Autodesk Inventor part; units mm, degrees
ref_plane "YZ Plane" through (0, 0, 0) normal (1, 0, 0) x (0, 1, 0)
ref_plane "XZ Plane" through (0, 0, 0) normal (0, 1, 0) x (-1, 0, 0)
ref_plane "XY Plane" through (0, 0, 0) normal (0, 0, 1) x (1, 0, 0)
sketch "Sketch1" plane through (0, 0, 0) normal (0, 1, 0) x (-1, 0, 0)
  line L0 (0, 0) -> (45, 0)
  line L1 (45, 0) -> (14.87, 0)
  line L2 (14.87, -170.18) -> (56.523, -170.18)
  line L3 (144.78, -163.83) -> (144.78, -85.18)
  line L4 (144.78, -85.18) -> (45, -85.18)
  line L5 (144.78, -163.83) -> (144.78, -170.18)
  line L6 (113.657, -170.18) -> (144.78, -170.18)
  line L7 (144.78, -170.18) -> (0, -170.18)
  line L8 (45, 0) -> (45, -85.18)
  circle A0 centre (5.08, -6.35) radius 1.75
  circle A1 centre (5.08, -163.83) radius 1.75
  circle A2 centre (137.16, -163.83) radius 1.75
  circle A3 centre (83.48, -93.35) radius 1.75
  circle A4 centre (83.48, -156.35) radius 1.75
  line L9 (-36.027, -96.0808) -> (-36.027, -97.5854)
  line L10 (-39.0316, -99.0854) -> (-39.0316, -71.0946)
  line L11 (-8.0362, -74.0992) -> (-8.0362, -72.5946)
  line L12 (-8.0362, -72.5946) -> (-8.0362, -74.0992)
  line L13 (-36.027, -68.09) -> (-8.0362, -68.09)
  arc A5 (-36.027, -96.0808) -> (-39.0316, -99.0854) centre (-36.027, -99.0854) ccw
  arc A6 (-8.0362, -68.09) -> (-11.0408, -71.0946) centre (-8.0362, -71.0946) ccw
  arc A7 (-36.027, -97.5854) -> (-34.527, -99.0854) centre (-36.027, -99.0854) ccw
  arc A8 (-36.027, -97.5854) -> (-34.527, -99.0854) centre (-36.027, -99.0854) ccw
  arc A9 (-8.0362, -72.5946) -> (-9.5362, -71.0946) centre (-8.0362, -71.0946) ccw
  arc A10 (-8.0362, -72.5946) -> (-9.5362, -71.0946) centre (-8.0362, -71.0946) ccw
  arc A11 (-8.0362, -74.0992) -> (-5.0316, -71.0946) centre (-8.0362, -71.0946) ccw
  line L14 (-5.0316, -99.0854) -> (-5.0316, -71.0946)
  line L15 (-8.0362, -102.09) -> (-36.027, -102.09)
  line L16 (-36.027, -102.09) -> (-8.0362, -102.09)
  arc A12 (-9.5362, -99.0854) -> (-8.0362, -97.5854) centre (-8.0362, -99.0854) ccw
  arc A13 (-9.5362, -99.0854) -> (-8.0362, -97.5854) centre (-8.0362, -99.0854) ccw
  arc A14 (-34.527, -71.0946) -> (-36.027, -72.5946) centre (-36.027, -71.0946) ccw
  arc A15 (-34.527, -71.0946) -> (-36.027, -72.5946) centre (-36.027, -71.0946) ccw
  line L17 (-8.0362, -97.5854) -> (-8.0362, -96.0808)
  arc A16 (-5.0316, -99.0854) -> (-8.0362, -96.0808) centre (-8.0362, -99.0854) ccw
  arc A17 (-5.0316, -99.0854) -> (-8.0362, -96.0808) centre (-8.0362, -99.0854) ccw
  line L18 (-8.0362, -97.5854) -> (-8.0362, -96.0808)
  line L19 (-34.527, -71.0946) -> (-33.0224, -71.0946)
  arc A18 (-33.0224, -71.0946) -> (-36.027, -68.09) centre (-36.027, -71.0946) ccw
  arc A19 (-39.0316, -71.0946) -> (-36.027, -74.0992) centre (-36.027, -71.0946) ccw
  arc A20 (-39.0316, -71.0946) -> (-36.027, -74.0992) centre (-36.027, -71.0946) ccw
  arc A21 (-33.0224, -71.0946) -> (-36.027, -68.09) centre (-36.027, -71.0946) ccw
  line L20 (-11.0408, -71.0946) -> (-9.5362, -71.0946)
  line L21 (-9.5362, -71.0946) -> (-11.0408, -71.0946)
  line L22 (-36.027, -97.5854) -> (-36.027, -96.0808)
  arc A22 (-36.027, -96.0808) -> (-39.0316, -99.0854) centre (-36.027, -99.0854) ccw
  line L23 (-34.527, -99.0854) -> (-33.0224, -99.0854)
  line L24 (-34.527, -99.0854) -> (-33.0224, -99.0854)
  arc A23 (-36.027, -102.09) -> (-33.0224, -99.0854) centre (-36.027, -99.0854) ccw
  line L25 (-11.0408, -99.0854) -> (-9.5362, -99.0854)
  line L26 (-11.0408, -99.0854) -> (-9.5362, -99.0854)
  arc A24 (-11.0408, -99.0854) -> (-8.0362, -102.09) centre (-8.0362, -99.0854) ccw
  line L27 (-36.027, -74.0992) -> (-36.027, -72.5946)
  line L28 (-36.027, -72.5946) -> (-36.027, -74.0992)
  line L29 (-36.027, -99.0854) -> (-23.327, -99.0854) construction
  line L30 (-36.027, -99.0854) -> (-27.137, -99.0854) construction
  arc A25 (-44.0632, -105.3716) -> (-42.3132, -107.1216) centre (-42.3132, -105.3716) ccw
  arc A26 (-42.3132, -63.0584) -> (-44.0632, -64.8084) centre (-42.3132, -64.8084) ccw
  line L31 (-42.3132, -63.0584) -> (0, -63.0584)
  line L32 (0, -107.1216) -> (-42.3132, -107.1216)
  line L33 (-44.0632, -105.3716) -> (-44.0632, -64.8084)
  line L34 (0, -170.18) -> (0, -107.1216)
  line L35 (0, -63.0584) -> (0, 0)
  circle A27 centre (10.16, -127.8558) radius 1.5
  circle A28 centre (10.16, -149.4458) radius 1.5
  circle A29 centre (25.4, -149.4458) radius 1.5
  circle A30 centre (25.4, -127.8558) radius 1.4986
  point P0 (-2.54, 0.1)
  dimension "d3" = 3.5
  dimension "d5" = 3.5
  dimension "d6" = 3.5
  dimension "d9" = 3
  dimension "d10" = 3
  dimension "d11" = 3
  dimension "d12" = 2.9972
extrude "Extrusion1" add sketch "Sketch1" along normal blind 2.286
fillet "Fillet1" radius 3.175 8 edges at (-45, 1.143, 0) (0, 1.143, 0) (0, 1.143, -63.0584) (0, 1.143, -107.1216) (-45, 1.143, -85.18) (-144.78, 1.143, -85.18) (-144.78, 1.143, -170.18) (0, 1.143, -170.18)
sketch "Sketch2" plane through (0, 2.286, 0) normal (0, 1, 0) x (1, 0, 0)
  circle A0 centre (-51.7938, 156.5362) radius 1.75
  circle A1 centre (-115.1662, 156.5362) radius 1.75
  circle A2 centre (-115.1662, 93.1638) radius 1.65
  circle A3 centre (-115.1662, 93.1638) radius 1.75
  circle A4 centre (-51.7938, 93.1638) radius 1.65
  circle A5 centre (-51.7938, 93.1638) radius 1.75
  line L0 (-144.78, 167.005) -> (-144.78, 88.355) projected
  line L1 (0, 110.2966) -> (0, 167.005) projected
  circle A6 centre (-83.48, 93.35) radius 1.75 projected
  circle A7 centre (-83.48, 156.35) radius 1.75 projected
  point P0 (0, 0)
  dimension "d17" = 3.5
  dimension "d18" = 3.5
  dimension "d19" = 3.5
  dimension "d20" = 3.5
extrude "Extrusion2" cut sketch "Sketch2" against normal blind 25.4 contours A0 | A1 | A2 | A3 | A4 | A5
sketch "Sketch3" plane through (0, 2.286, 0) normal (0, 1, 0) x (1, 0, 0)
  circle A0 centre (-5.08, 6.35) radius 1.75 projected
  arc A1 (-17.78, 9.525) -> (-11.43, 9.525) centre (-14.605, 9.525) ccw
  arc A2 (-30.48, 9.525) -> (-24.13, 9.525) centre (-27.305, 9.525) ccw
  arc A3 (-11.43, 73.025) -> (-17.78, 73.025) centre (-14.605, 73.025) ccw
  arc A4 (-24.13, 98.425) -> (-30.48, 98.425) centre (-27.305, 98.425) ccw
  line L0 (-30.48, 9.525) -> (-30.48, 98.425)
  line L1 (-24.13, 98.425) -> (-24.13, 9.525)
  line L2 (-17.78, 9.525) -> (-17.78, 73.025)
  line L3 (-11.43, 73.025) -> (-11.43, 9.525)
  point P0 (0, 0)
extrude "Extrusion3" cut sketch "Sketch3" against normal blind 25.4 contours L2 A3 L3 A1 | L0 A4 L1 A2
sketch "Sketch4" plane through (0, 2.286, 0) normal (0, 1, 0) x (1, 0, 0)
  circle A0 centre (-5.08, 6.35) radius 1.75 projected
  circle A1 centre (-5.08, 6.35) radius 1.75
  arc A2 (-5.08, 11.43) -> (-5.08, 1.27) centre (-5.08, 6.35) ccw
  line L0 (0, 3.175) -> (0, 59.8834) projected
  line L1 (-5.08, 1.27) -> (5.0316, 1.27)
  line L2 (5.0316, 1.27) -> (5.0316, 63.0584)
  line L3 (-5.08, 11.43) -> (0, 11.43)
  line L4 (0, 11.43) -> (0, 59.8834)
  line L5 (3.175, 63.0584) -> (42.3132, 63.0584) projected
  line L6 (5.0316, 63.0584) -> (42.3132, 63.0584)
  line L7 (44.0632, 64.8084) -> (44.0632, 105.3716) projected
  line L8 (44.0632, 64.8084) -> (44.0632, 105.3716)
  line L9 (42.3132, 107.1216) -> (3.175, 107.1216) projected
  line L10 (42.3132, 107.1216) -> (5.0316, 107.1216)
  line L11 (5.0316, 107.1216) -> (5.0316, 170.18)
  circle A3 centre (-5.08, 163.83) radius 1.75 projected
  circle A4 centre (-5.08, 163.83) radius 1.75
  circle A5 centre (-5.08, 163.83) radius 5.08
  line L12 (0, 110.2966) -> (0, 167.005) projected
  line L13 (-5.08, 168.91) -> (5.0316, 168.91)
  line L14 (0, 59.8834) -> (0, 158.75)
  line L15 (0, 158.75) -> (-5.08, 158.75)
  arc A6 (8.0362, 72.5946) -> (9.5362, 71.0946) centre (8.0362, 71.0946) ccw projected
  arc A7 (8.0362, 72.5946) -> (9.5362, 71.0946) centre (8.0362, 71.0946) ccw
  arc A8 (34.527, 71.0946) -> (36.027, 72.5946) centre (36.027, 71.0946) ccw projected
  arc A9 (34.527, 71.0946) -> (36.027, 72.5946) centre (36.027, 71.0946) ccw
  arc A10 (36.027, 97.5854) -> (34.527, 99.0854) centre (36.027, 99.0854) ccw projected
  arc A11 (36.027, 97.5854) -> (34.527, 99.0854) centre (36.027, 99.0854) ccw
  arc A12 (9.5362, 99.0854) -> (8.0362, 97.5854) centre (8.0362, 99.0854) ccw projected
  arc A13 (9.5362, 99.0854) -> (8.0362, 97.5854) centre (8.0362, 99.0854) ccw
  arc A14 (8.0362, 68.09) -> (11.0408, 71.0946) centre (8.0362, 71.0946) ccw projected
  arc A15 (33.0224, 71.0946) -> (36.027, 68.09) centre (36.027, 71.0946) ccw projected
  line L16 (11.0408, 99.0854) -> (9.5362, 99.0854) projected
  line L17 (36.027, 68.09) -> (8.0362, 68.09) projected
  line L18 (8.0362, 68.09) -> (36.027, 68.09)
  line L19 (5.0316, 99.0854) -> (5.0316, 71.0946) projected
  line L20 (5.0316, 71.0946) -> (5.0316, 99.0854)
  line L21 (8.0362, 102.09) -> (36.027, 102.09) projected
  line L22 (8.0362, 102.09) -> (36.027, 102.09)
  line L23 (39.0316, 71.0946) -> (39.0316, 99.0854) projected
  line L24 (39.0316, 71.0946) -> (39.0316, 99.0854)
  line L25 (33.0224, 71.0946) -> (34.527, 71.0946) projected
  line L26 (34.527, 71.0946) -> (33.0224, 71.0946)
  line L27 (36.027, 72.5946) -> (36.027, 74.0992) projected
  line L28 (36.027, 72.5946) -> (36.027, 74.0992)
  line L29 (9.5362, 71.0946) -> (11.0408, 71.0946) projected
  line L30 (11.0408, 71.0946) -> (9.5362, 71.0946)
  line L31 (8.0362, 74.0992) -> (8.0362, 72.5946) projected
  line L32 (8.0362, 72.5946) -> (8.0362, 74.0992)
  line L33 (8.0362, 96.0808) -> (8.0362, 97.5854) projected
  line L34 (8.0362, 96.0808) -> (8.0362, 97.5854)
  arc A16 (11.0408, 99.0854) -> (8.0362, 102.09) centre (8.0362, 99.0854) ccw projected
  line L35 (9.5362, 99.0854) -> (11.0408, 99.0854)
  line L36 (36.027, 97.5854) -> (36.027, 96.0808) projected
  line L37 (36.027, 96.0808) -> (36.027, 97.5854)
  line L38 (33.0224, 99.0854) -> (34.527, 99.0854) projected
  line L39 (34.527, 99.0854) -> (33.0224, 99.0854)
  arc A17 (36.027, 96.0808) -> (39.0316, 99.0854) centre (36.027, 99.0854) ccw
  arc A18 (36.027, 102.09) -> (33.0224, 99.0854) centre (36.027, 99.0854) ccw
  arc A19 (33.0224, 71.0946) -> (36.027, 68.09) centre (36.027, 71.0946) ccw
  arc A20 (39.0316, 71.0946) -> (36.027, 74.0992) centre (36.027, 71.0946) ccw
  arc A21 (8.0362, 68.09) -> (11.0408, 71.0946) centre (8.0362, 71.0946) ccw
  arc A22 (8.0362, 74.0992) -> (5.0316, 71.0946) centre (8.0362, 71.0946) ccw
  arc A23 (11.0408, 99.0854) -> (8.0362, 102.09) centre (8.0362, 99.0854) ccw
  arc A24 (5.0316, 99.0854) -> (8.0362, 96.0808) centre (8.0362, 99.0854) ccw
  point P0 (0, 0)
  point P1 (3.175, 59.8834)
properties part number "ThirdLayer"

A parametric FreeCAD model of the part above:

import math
import FreeCAD as App
import Part
import Sketcher

V = App.Vector
Q = App.Units.Quantity


def edges_at(feature, points):
    """Names of the edges that pass closest to the given points."""
    edges = feature.Shape.Edges
    near = lambda p: min(range(len(edges)), key=lambda i: edges[i].distToShape(Part.Vertex(*p))[0])
    return sorted({f"Edge{near(p) + 1}" for p in points})

doc = App.newDocument("Part")
body = doc.addObject("PartDesign::Body", "Body")

# Sketch on XZ plane
sketch1 = doc.addObject("Sketcher::SketchObject", "Sketch")
body.addObject(sketch1)
sketch1.AttachmentSupport = (doc.XZ_Plane, [""])
sketch1.MapMode = "FlatFace"
sketch1.addGeometry([
    Part.LineSegment(V(-45, 0, 0), V(0, 0, 0)),  # 0
    Part.LineSegment(V(0, 0, 0), V(0, -63.1, 0)),  # 1
    Part.LineSegment(V(0, -63.1, 0), V(42.3, -63.1, 0)),  # 2
    Part.ArcOfCircle(Part.Circle(V(42.3, -64.8, 0), V(0, 0, 1), 1.8), math.radians(0), math.radians(90)),  # 3
    Part.LineSegment(V(44.1, -64.8, 0), V(44.1, -105.4, 0)),  # 4
    Part.ArcOfCircle(Part.Circle(V(42.3, -105.4, 0), V(0, 0, 1), 1.8), math.radians(-90), math.radians(0)),  # 5
    Part.LineSegment(V(42.3, -107.1, 0), V(0, -107.1, 0)),  # 6
    Part.LineSegment(V(0, -107.1, 0), V(0, -170.2, 0)),  # 7
    Part.LineSegment(V(0, -170.2, 0), V(-144.8, -170.2, 0)),  # 8
    Part.LineSegment(V(-144.8, -170.2, 0), V(-144.8, -85.2, 0)),  # 9
    Part.LineSegment(V(-144.8, -85.2, 0), V(-45, -85.2, 0)),  # 10
    Part.LineSegment(V(-45, -85.2, 0), V(-45, 0, 0)),  # 11
    Part.Circle(V(-5.1, -163.8, 0), V(0, 0, 1), 1.8),  # 12
    Part.Circle(V(-10.2, -149.4, 0), V(0, 0, 1), 1.5),  # 13
    Part.Circle(V(-25.4, -149.4, 0), V(0, 0, 1), 1.5),  # 14
    Part.Circle(V(-10.2, -127.9, 0), V(0, 0, 1), 1.5),  # 15
    Part.Circle(V(-25.4, -127.9, 0), V(0, 0, 1), 1.5),  # 16
    Part.Circle(V(-83.5, -156.3, 0), V(0, 0, 1), 1.8),  # 17
    Part.Circle(V(-137.2, -163.8, 0), V(0, 0, 1), 1.8),  # 18
    Part.Circle(V(-83.5, -93.3, 0), V(0, 0, 1), 1.8),  # 19
    Part.LineSegment(V(36, -97.6, 0), V(36, -96.1, 0)),  # 20
    Part.ArcOfCircle(Part.Circle(V(36, -99.1, 0), V(0, 0, 1), 3), math.radians(0), math.radians(90)),  # 21
    Part.LineSegment(V(39, -99.1, 0), V(39, -71.1, 0)),  # 22
    Part.ArcOfCircle(Part.Circle(V(36, -71.1, 0), V(0, 0, 1), 3), math.radians(-90), math.radians(0)),  # 23
    Part.LineSegment(V(36, -74.1, 0), V(36, -72.6, 0)),  # 24
    Part.ArcOfCircle(Part.Circle(V(36, -71.1, 0), V(0, 0, 1), 1.5), math.radians(-90), math.radians(180)),  # 25
    Part.LineSegment(V(34.5, -71.1, 0), V(33, -71.1, 0)),  # 26
    Part.ArcOfCircle(Part.Circle(V(36, -71.1, 0), V(0, 0, 1), 3), math.radians(90), math.radians(180)),  # 27
    Part.LineSegment(V(36, -68.1, 0), V(8, -68.1, 0)),  # 28
    Part.ArcOfCircle(Part.Circle(V(8, -71.1, 0), V(0, 0, 1), 3), math.radians(0), math.radians(90)),  # 29
    Part.LineSegment(V(11, -71.1, 0), V(9.5, -71.1, 0)),  # 30
    Part.ArcOfCircle(Part.Circle(V(8, -71.1, 0), V(0, 0, 1), 1.5), math.radians(0), math.radians(270)),  # 31
    Part.LineSegment(V(8, -72.6, 0), V(8, -74.1, 0)),  # 32
    Part.ArcOfCircle(Part.Circle(V(8, -71.1, 0), V(0, 0, 1), 3), math.radians(180), math.radians(270)),  # 33
    Part.LineSegment(V(5, -71.1, 0), V(5, -99.1, 0)),  # 34
    Part.ArcOfCircle(Part.Circle(V(8, -99.1, 0), V(0, 0, 1), 3), math.radians(90), math.radians(180)),  # 35
    Part.LineSegment(V(8, -96.1, 0), V(8, -97.6, 0)),  # 36
    Part.ArcOfCircle(Part.Circle(V(8, -99.1, 0), V(0, 0, 1), 1.5), math.radians(90), math.radians(360)),  # 37
    Part.LineSegment(V(9.5, -99.1, 0), V(11, -99.1, 0)),  # 38
    Part.ArcOfCircle(Part.Circle(V(8, -99.1, 0), V(0, 0, 1), 3), math.radians(-90), math.radians(0)),  # 39
    Part.LineSegment(V(8, -102.1, 0), V(36, -102.1, 0)),  # 40
    Part.ArcOfCircle(Part.Circle(V(36, -99.1, 0), V(0, 0, 1), 3), math.radians(180), math.radians(270)),  # 41
    Part.LineSegment(V(33, -99.1, 0), V(34.5, -99.1, 0)),  # 42
    Part.ArcOfCircle(Part.Circle(V(36, -99.1, 0), V(0, 0, 1), 1.5), math.radians(180), math.radians(450)),  # 43
    Part.Circle(V(-5.1, -6.3, 0), V(0, 0, 1), 1.8),  # 44
], False)
sketch1.addConstraint([
    Sketcher.Constraint("Coincident", 0, 2, 1, 1),
    Sketcher.Constraint("Coincident", 1, 2, 2, 1),
    Sketcher.Constraint("Tangent", 2, 2, 3, 2),
    Sketcher.Constraint("Tangent", 3, 1, 4, 1),
    Sketcher.Constraint("Tangent", 4, 2, 5, 2),
    Sketcher.Constraint("Tangent", 5, 1, 6, 1),
    Sketcher.Constraint("Coincident", 6, 2, 7, 1),
    Sketcher.Constraint("Coincident", 7, 2, 8, 1),
    Sketcher.Constraint("Coincident", 8, 2, 9, 1),
    Sketcher.Constraint("Coincident", 9, 2, 10, 1),
    Sketcher.Constraint("Coincident", 10, 2, 11, 1),
    Sketcher.Constraint("Coincident", 11, 2, 0, 1),
    Sketcher.Constraint("Coincident", 20, 2, 21, 2),
    Sketcher.Constraint("Tangent", 21, 1, 22, 1),
    Sketcher.Constraint("Tangent", 22, 2, 23, 2),
    Sketcher.Constraint("Coincident", 23, 1, 24, 1),
    Sketcher.Constraint("Coincident", 24, 2, 25, 1),
    Sketcher.Constraint("Coincident", 25, 2, 26, 1),
    Sketcher.Constraint("Coincident", 26, 2, 27, 2),
    Sketcher.Constraint("Tangent", 27, 1, 28, 1),
    Sketcher.Constraint("Tangent", 28, 2, 29, 2),
    Sketcher.Constraint("Coincident", 29, 1, 30, 1),
    Sketcher.Constraint("Coincident", 30, 2, 31, 1),
    Sketcher.Constraint("Coincident", 31, 2, 32, 1),
    Sketcher.Constraint("Coincident", 32, 2, 33, 2),
    Sketcher.Constraint("Tangent", 33, 1, 34, 1),
    Sketcher.Constraint("Tangent", 34, 2, 35, 2),
    Sketcher.Constraint("Coincident", 35, 1, 36, 1),
    Sketcher.Constraint("Coincident", 36, 2, 37, 1),
    Sketcher.Constraint("Coincident", 37, 2, 38, 1),
    Sketcher.Constraint("Coincident", 38, 2, 39, 2),
    Sketcher.Constraint("Tangent", 39, 1, 40, 1),
    Sketcher.Constraint("Tangent", 40, 2, 41, 2),
    Sketcher.Constraint("Coincident", 41, 1, 42, 1),
    Sketcher.Constraint("Coincident", 42, 2, 43, 1),
    Sketcher.Constraint("Coincident", 43, 2, 20, 1),
    Sketcher.Constraint("Horizontal", 0),
    Sketcher.Constraint("Vertical", 1),
    Sketcher.Constraint("Horizontal", 2),
    Sketcher.Constraint("Vertical", 4),
    Sketcher.Constraint("Horizontal", 6),
    Sketcher.Constraint("Vertical", 7),
    Sketcher.Constraint("Horizontal", 8),
    Sketcher.Constraint("Vertical", 9),
    Sketcher.Constraint("Horizontal", 10),
    Sketcher.Constraint("Vertical", 11),
    Sketcher.Constraint("Vertical", 20),
    Sketcher.Constraint("Vertical", 22),
    Sketcher.Constraint("Vertical", 24),
    Sketcher.Constraint("Horizontal", 26),
    Sketcher.Constraint("Horizontal", 28),
    Sketcher.Constraint("Horizontal", 30),
    Sketcher.Constraint("Vertical", 32),
    Sketcher.Constraint("Vertical", 34),
    Sketcher.Constraint("Vertical", 36),
    Sketcher.Constraint("Horizontal", 38),
    Sketcher.Constraint("Horizontal", 40),
    Sketcher.Constraint("Horizontal", 42),
    Sketcher.Constraint("Coincident", 0, 2, -1, 1),
    Sketcher.Constraint("Coincident", 25, 3, 23, 3),
    Sketcher.Constraint("Coincident", 27, 3, 23, 3),
    Sketcher.Constraint("Coincident", 31, 3, 29, 3),
    Sketcher.Constraint("Coincident", 33, 3, 29, 3),
    Sketcher.Constraint("Coincident", 37, 3, 35, 3),
    Sketcher.Constraint("Coincident", 39, 3, 35, 3),
    Sketcher.Constraint("Coincident", 41, 3, 21, 3),
    Sketcher.Constraint("Coincident", 43, 3, 21, 3),
    Sketcher.Constraint("Equal", 3, 5),
    Sketcher.Constraint("Equal", 5, 12),
    Sketcher.Constraint("Equal", 13, 14),
    Sketcher.Constraint("Equal", 14, 15),
    Sketcher.Constraint("Equal", 12, 17),
    Sketcher.Constraint("Equal", 17, 18),
    Sketcher.Constraint("Equal", 18, 19),
    Sketcher.Constraint("Equal", 21, 23),
    Sketcher.Constraint("Equal", 15, 25),
    Sketcher.Constraint("Equal", 23, 27),
    Sketcher.Constraint("Equal", 27, 29),
    Sketcher.Constraint("Equal", 25, 31),
    Sketcher.Constraint("Equal", 29, 33),
    Sketcher.Constraint("Equal", 33, 35),
    Sketcher.Constraint("Equal", 31, 37),
    Sketcher.Constraint("Equal", 35, 39),
    Sketcher.Constraint("Equal", 39, 41),
    Sketcher.Constraint("Equal", 37, 43),
    Sketcher.Constraint("Equal", 19, 44),
    Sketcher.Constraint("PointOnObject", 6, 2, -2),
    Sketcher.Constraint("Horizontal", 13, 3, 14, 3),
    Sketcher.Constraint("Horizontal", 15, 3, 16, 3),
    Sketcher.Constraint("Horizontal", 12, 3, 18, 3),
    Sketcher.Constraint("Horizontal", 22, 2, 25, 2),
    Sketcher.Constraint("Horizontal", 26, 2, 29, 1),
    Sketcher.Constraint("Horizontal", 34, 2, 37, 2),
    Sketcher.Constraint("Horizontal", 38, 2, 41, 1),
    Sketcher.Constraint("Vertical", 13, 3, 15, 3),
    Sketcher.Constraint("Vertical", 14, 3, 16, 3),
    Sketcher.Constraint("Vertical", 17, 3, 19, 3),
    Sketcher.Constraint("Vertical", 12, 3, 44, 3),
    Sketcher.Constraint("Vertical", 43, 3, 20, 2),
    Sketcher.Constraint("Vertical", 20, 2, 23, 1),
    Sketcher.Constraint("Vertical", 28, 2, 31, 2),
    Sketcher.Constraint("Vertical", 32, 2, 35, 1),
    Sketcher.Constraint("Equal", 1, 7),
    Sketcher.Constraint("Equal", 40, 22),
    Sketcher.Constraint("Diameter", 16, Q("0.118 in")),
    Sketcher.Constraint("Diameter", 12, Q("0.1378 in")),
    Sketcher.Constraint("Diameter", 13, Q("0.1181 in")),
    Sketcher.Constraint("DistanceX", 8, 2, 8, 1, Q("5.7 in")),
    Sketcher.Constraint("DistanceX", 14, 3, -1, 1, Q("1 in")),
    Sketcher.Constraint("DistanceX", 18, 3, 13, 3, Q("5 in")),
    Sketcher.Constraint("DistanceX", 12, 3, -1, 1, Q("0.2 in")),
    Sketcher.Constraint("DistanceX", 13, 3, -1, 1, Q("0.4 in")),
    Sketcher.Constraint("DistanceY", 7, 2, -1, 1, Q("6.7 in")),
    Sketcher.Constraint("Radius", 21, Q("0.1183 in")),
    Sketcher.Constraint("DistanceX", 28, 2, 28, 1, Q("1.102 in")),
    Sketcher.Constraint("DistanceY", 12, 3, -1, 1, Q("6.45 in")),
    Sketcher.Constraint("DistanceY", 44, 3, -1, 1, Q("0.25 in")),
    Sketcher.Constraint("DistanceY", 13, 3, 15, 3, Q("0.85 in")),
    Sketcher.Constraint("DistanceY", 21, 3, -1, 1, Q("3.901 in")),
    Sketcher.Constraint("DistanceX", 0, 1, 0, 2, Q("45 mm")),
    Sketcher.Constraint("DistanceX", 2, 1, 2, 2, Q("42.3132 mm")),
    Sketcher.Constraint("DistanceY", 1, 2, 1, 1, Q("63.0584 mm")),
    Sketcher.Constraint("DistanceY", 9, 1, 9, 2, Q("85 mm")),
    Sketcher.Constraint("DistanceY", 13, 3, -1, 1, Q("5.8837 in")),
    Sketcher.Constraint("DistanceY", 17, 3, -1, 1, Q("6.1555 in")),
    Sketcher.Constraint("DistanceY", 19, 3, -1, 1, Q("3.6752 in")),
    Sketcher.Constraint("DistanceX", -1, 1, 26, 2, Q("1.3001 in")),
    Sketcher.Constraint("DistanceX", 17, 3, -1, 1, Q("83.48 mm")),
])
pad1 = doc.addObject("PartDesign::Pad", "Pad")
body.addObject(pad1)
pad1.Profile = sketch1
pad1.Length = Q("0.09 in")
pad1.Reversed = True
doc.recompute()

fillet = doc.addObject("PartDesign::Fillet", "Fillet")
body.addObject(fillet)
fillet.Base = (pad1, edges_at(pad1, [
    (-45, 1.143, 0),
    (0, 1.143, 0),
    (0, 1.143, -63.058),
    (0, 1.143, -107.122),
    (-45, 1.143, -85.18),
    (-144.78, 1.143, -85.18),
    (-144.78, 1.143, -170.18),
    (0, 1.143, -170.18),
]))
fillet.Radius = Q("0.125 in")

# Sketch on XZ plane
sketch2 = doc.addObject("Sketcher::SketchObject", "Sketch001")
body.addObject(sketch2)
sketch2.AttachmentSupport = (doc.XZ_Plane, [""])
sketch2.MapMode = "FlatFace"
sketch2.AttachmentOffset = App.Placement(V(0, 0, -0.09 * 25.4), App.Rotation())
sketch2.addGeometry([
    Part.Circle(V(-51.8, -156.5, 0), V(0, 0, 1), 1.8),
    Part.Circle(V(-115.2, -156.5, 0), V(0, 0, 1), 1.8),
    Part.Circle(V(-115.2, -93.2, 0), V(0, 0, 1), 1.8),
    Part.Circle(V(-51.8, -93.2, 0), V(0, 0, 1), 1.8),
], False)
sketch2.addConstraint([
    Sketcher.Constraint("Equal", 0, 1),
    Sketcher.Constraint("Equal", 1, 2),
    Sketcher.Constraint("Equal", 2, 3),
    Sketcher.Constraint("Horizontal", 0, 3, 1, 3),
    Sketcher.Constraint("Horizontal", 2, 3, 3, 3),
    Sketcher.Constraint("Vertical", 1, 3, 2, 3),
    Sketcher.Constraint("Vertical", 0, 3, 3, 3),
    Sketcher.Constraint("Diameter", 0, Q("0.1378 in")),
    Sketcher.Constraint("DistanceX", 1, 3, -1, 1, Q("4.5341 in")),
    Sketcher.Constraint("DistanceX", 0, 3, -1, 1, Q("51.7938 mm")),
    Sketcher.Constraint("DistanceY", 0, 3, -1, 1, Q("156.5362 mm")),
    Sketcher.Constraint("DistanceY", 2, 3, -1, 1, Q("93.1638 mm")),
])
pocket1 = doc.addObject("PartDesign::Pocket", "Pocket")
body.addObject(pocket1)
pocket1.Profile = sketch2
pocket1.Length = Q("1 in")
pocket1.Reversed = True

# Sketch on XZ plane
sketch3 = doc.addObject("Sketcher::SketchObject", "Sketch002")
body.addObject(sketch3)
sketch3.AttachmentSupport = (doc.XZ_Plane, [""])
sketch3.MapMode = "FlatFace"
sketch3.AttachmentOffset = App.Placement(V(0, 0, -0.09 * 25.4), App.Rotation())
sketch3.addGeometry([
    Part.LineSegment(V(-17.8, -73, 0), V(-17.8, -9.5, 0)),  # 0
    Part.ArcOfCircle(Part.Circle(V(-14.6, -9.5, 0), V(0, 0, 1), 3.2), math.radians(0), math.radians(180)),  # 1
    Part.LineSegment(V(-11.4, -9.5, 0), V(-11.4, -73, 0)),  # 2
    Part.ArcOfCircle(Part.Circle(V(-14.6, -73, 0), V(0, 0, 1), 3.2), math.radians(180), math.radians(360)),  # 3
    Part.LineSegment(V(-30.5, -98.4, 0), V(-30.5, -9.5, 0)),  # 4
    Part.ArcOfCircle(Part.Circle(V(-27.3, -9.5, 0), V(0, 0, 1), 3.2), math.radians(0), math.radians(180)),  # 5
    Part.LineSegment(V(-24.1, -9.5, 0), V(-24.1, -98.4, 0)),  # 6
    Part.ArcOfCircle(Part.Circle(V(-27.3, -98.4, 0), V(0, 0, 1), 3.2), math.radians(180), math.radians(360)),  # 7
], False)
sketch3.addConstraint([
    Sketcher.Constraint("Tangent", 0, 2, 1, 2),
    Sketcher.Constraint("Tangent", 1, 1, 2, 1),
    Sketcher.Constraint("Tangent", 2, 2, 3, 2),
    Sketcher.Constraint("Tangent", 3, 1, 0, 1),
    Sketcher.Constraint("Tangent", 4, 2, 5, 2),
    Sketcher.Constraint("Tangent", 5, 1, 6, 1),
    Sketcher.Constraint("Tangent", 6, 2, 7, 2),
    Sketcher.Constraint("Tangent", 7, 1, 4, 1),
    Sketcher.Constraint("Vertical", 0),
    Sketcher.Constraint("Vertical", 2),
    Sketcher.Constraint("Vertical", 4),
    Sketcher.Constraint("Vertical", 6),
    Sketcher.Constraint("Equal", 3, 5),
    Sketcher.Constraint("Horizontal", 1, 3, 5, 3),
    Sketcher.Constraint("DistanceY", 0, 1, 0, 2, Q("2.5 in")),
    Sketcher.Constraint("DistanceY", 4, 1, 4, 2, Q("3.5 in")),
    Sketcher.Constraint("Radius", 1, Q("0.125 in")),
    Sketcher.Constraint("DistanceX", 0, 2, -1, 1, Q("0.7 in")),
    Sketcher.Constraint("DistanceX", 4, 2, -1, 1, Q("1.2 in")),
    Sketcher.Constraint("DistanceY", 1, 3, -1, 1, Q("0.375 in")),
])
pocket2 = doc.addObject("PartDesign::Pocket", "Pocket001")
body.addObject(pocket2)
pocket2.Profile = sketch3
pocket2.Length = Q("1 in")
pocket2.Reversed = True

doc.recompute()
